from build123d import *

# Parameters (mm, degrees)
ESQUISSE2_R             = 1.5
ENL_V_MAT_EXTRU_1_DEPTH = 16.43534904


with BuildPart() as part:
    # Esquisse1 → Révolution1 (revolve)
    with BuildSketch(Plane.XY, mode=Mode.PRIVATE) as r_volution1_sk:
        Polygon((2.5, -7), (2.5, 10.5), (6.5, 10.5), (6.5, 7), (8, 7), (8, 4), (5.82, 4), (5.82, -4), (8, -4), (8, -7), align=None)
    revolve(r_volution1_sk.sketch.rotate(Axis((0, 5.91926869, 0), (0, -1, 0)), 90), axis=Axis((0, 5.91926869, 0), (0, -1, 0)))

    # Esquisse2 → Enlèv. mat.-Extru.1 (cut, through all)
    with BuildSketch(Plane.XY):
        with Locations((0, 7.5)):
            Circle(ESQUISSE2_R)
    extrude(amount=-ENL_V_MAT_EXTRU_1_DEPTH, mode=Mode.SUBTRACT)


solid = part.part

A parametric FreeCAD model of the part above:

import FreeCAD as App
import Part
import Sketcher
Q = App.Units.Quantity

doc = App.newDocument("Part")
params = doc.addObject("Spreadsheet::Sheet", "Params")
for row, (alias, value) in enumerate([
    ("sketch1_width", "4 mm"),
    ("sketch1_height", "3 mm"),
    ("sketch1_height2", "8 mm"),
    ("sketch1_width2", "5.5 mm"),
    ("sketch1_height3", "17.5 mm"),
    ("revolution_angle", "360 deg"),
    ("sketch2_diameter", "3 mm"),
], start=1):
    params.set(f"A{row}", alias)
    params.set(f"B{row}", "=" + value)
    params.setAlias(f"B{row}", alias)

body = doc.addObject("PartDesign::Body", "Body")

# Sketch on XY plane
sketch1 = body.newObject("Sketcher::SketchObject", "Sketch")
sketch1.AttachmentSupport = (doc.getObject("XY_Plane"), [""])
sketch1.MapMode = "FlatFace"
sketch1.addGeometry(Part.LineSegment(App.Vector(2.5, 10.5, 0), App.Vector(2.5, -7, 0)), False)
sketch1.addGeometry(Part.LineSegment(App.Vector(2.5, -7, 0), App.Vector(8, -7, 0)), False)
sketch1.addGeometry(Part.LineSegment(App.Vector(8, -7, 0), App.Vector(8, -4, 0)), False)
sketch1.addGeometry(Part.LineSegment(App.Vector(8, -4, 0), App.Vector(5.82, -4, 0)), False)
sketch1.addGeometry(Part.LineSegment(App.Vector(5.82, -4, 0), App.Vector(5.82, 4, 0)), False)
sketch1.addGeometry(Part.LineSegment(App.Vector(5.82, 4, 0), App.Vector(8, 4, 0)), False)
sketch1.addGeometry(Part.LineSegment(App.Vector(8, 4, 0), App.Vector(8, 7, 0)), False)
sketch1.addGeometry(Part.LineSegment(App.Vector(8, 7, 0), App.Vector(6.5, 7, 0)), False)
sketch1.addGeometry(Part.LineSegment(App.Vector(6.5, 7, 0), App.Vector(6.5, 10.5, 0)), False)
sketch1.addGeometry(Part.LineSegment(App.Vector(6.5, 10.5, 0), App.Vector(2.5, 10.5, 0)), False)
sketch1.addConstraint(Sketcher.Constraint("Coincident", 0, 2, 1, 1))
sketch1.addConstraint(Sketcher.Constraint("Coincident", 1, 2, 2, 1))
sketch1.addConstraint(Sketcher.Constraint("Coincident", 2, 2, 3, 1))
sketch1.addConstraint(Sketcher.Constraint("Coincident", 3, 2, 4, 1))
sketch1.addConstraint(Sketcher.Constraint("Coincident", 4, 2, 5, 1))
sketch1.addConstraint(Sketcher.Constraint("Coincident", 5, 2, 6, 1))
sketch1.addConstraint(Sketcher.Constraint("Coincident", 6, 2, 7, 1))
sketch1.addConstraint(Sketcher.Constraint("Coincident", 7, 2, 8, 1))
sketch1.addConstraint(Sketcher.Constraint("Coincident", 8, 2, 9, 1))
sketch1.addConstraint(Sketcher.Constraint("Coincident", 9, 2, 0, 1))
sketch1.addConstraint(Sketcher.Constraint("Vertical", 0))
sketch1.addConstraint(Sketcher.Constraint("Horizontal", 1))
sketch1.addConstraint(Sketcher.Constraint("Vertical", 2))
sketch1.addConstraint(Sketcher.Constraint("Horizontal", 3))
sketch1.addConstraint(Sketcher.Constraint("Vertical", 4))
sketch1.addConstraint(Sketcher.Constraint("Horizontal", 5))
sketch1.addConstraint(Sketcher.Constraint("Vertical", 6))
sketch1.addConstraint(Sketcher.Constraint("Horizontal", 7))
sketch1.addConstraint(Sketcher.Constraint("Vertical", 8))
sketch1.addConstraint(Sketcher.Constraint("Horizontal", 9))
sketch1.addConstraint(Sketcher.Constraint("Symmetric", 2, 2, 5, 2, -1))
sketch1.addConstraint(Sketcher.Constraint("Equal", 2, 6))
sketch1.addConstraint(Sketcher.Constraint("DistanceX", 9, 2, 9, 1, Q("4 mm")))
sketch1.addConstraint(Sketcher.Constraint("DistanceY", 2, 1, 2, 2, Q("3 mm")))
sketch1.addConstraint(Sketcher.Constraint("DistanceY", 4, 1, 4, 2, Q("8 mm")))
sketch1.addConstraint(Sketcher.Constraint("DistanceX", 1, 1, 1, 2, Q("5.5 mm")))
sketch1.addConstraint(Sketcher.Constraint("DistanceY", 0, 2, 0, 1, Q("17.5 mm")))
sketch1.addConstraint(Sketcher.Constraint("DistanceX", -1, 1, 1, 2, Q("8 mm")))
sketch1.addConstraint(Sketcher.Constraint("DistanceX", 3, 2, 3, 1, Q("2.18 mm")))
sketch1.setExpression("Constraints[22]", "Params.sketch1_width")
sketch1.setExpression("Constraints[23]", "Params.sketch1_height")
sketch1.setExpression("Constraints[24]", "Params.sketch1_height2")
sketch1.setExpression("Constraints[25]", "Params.sketch1_width2")
sketch1.setExpression("Constraints[26]", "Params.sketch1_height3")
revolution = body.newObject("PartDesign::Revolution", "Revolution")
revolution.Profile = sketch1
revolution.ReferenceAxis = (sketch1, ["V_Axis"])
revolution.setExpression("Angle", "Params.revolution_angle")

# Sketch on XY plane
sketch2 = body.newObject("Sketcher::SketchObject", "Sketch001")
sketch2.AttachmentSupport = (doc.getObject("XY_Plane"), [""])
sketch2.MapMode = "FlatFace"
sketch2.addGeometry(Part.Circle(App.Vector(0, 7.5, 0), App.Vector(0, 0, 1), 1.5), False)
sketch2.addConstraint(Sketcher.Constraint("PointOnObject", 0, 3, -2))
sketch2.addConstraint(Sketcher.Constraint("Diameter", 0, Q("3 mm")))
sketch2.addConstraint(Sketcher.Constraint("DistanceY", -1, 1, 0, 3, Q("7.5 mm")))
sketch2.setExpression("Constraints[1]", "Params.sketch2_diameter")
pocket1 = body.newObject("PartDesign::Pocket", "Pocket")
pocket1.Profile = sketch2
pocket1.Type = "ThroughAll"

doc.recompute()
